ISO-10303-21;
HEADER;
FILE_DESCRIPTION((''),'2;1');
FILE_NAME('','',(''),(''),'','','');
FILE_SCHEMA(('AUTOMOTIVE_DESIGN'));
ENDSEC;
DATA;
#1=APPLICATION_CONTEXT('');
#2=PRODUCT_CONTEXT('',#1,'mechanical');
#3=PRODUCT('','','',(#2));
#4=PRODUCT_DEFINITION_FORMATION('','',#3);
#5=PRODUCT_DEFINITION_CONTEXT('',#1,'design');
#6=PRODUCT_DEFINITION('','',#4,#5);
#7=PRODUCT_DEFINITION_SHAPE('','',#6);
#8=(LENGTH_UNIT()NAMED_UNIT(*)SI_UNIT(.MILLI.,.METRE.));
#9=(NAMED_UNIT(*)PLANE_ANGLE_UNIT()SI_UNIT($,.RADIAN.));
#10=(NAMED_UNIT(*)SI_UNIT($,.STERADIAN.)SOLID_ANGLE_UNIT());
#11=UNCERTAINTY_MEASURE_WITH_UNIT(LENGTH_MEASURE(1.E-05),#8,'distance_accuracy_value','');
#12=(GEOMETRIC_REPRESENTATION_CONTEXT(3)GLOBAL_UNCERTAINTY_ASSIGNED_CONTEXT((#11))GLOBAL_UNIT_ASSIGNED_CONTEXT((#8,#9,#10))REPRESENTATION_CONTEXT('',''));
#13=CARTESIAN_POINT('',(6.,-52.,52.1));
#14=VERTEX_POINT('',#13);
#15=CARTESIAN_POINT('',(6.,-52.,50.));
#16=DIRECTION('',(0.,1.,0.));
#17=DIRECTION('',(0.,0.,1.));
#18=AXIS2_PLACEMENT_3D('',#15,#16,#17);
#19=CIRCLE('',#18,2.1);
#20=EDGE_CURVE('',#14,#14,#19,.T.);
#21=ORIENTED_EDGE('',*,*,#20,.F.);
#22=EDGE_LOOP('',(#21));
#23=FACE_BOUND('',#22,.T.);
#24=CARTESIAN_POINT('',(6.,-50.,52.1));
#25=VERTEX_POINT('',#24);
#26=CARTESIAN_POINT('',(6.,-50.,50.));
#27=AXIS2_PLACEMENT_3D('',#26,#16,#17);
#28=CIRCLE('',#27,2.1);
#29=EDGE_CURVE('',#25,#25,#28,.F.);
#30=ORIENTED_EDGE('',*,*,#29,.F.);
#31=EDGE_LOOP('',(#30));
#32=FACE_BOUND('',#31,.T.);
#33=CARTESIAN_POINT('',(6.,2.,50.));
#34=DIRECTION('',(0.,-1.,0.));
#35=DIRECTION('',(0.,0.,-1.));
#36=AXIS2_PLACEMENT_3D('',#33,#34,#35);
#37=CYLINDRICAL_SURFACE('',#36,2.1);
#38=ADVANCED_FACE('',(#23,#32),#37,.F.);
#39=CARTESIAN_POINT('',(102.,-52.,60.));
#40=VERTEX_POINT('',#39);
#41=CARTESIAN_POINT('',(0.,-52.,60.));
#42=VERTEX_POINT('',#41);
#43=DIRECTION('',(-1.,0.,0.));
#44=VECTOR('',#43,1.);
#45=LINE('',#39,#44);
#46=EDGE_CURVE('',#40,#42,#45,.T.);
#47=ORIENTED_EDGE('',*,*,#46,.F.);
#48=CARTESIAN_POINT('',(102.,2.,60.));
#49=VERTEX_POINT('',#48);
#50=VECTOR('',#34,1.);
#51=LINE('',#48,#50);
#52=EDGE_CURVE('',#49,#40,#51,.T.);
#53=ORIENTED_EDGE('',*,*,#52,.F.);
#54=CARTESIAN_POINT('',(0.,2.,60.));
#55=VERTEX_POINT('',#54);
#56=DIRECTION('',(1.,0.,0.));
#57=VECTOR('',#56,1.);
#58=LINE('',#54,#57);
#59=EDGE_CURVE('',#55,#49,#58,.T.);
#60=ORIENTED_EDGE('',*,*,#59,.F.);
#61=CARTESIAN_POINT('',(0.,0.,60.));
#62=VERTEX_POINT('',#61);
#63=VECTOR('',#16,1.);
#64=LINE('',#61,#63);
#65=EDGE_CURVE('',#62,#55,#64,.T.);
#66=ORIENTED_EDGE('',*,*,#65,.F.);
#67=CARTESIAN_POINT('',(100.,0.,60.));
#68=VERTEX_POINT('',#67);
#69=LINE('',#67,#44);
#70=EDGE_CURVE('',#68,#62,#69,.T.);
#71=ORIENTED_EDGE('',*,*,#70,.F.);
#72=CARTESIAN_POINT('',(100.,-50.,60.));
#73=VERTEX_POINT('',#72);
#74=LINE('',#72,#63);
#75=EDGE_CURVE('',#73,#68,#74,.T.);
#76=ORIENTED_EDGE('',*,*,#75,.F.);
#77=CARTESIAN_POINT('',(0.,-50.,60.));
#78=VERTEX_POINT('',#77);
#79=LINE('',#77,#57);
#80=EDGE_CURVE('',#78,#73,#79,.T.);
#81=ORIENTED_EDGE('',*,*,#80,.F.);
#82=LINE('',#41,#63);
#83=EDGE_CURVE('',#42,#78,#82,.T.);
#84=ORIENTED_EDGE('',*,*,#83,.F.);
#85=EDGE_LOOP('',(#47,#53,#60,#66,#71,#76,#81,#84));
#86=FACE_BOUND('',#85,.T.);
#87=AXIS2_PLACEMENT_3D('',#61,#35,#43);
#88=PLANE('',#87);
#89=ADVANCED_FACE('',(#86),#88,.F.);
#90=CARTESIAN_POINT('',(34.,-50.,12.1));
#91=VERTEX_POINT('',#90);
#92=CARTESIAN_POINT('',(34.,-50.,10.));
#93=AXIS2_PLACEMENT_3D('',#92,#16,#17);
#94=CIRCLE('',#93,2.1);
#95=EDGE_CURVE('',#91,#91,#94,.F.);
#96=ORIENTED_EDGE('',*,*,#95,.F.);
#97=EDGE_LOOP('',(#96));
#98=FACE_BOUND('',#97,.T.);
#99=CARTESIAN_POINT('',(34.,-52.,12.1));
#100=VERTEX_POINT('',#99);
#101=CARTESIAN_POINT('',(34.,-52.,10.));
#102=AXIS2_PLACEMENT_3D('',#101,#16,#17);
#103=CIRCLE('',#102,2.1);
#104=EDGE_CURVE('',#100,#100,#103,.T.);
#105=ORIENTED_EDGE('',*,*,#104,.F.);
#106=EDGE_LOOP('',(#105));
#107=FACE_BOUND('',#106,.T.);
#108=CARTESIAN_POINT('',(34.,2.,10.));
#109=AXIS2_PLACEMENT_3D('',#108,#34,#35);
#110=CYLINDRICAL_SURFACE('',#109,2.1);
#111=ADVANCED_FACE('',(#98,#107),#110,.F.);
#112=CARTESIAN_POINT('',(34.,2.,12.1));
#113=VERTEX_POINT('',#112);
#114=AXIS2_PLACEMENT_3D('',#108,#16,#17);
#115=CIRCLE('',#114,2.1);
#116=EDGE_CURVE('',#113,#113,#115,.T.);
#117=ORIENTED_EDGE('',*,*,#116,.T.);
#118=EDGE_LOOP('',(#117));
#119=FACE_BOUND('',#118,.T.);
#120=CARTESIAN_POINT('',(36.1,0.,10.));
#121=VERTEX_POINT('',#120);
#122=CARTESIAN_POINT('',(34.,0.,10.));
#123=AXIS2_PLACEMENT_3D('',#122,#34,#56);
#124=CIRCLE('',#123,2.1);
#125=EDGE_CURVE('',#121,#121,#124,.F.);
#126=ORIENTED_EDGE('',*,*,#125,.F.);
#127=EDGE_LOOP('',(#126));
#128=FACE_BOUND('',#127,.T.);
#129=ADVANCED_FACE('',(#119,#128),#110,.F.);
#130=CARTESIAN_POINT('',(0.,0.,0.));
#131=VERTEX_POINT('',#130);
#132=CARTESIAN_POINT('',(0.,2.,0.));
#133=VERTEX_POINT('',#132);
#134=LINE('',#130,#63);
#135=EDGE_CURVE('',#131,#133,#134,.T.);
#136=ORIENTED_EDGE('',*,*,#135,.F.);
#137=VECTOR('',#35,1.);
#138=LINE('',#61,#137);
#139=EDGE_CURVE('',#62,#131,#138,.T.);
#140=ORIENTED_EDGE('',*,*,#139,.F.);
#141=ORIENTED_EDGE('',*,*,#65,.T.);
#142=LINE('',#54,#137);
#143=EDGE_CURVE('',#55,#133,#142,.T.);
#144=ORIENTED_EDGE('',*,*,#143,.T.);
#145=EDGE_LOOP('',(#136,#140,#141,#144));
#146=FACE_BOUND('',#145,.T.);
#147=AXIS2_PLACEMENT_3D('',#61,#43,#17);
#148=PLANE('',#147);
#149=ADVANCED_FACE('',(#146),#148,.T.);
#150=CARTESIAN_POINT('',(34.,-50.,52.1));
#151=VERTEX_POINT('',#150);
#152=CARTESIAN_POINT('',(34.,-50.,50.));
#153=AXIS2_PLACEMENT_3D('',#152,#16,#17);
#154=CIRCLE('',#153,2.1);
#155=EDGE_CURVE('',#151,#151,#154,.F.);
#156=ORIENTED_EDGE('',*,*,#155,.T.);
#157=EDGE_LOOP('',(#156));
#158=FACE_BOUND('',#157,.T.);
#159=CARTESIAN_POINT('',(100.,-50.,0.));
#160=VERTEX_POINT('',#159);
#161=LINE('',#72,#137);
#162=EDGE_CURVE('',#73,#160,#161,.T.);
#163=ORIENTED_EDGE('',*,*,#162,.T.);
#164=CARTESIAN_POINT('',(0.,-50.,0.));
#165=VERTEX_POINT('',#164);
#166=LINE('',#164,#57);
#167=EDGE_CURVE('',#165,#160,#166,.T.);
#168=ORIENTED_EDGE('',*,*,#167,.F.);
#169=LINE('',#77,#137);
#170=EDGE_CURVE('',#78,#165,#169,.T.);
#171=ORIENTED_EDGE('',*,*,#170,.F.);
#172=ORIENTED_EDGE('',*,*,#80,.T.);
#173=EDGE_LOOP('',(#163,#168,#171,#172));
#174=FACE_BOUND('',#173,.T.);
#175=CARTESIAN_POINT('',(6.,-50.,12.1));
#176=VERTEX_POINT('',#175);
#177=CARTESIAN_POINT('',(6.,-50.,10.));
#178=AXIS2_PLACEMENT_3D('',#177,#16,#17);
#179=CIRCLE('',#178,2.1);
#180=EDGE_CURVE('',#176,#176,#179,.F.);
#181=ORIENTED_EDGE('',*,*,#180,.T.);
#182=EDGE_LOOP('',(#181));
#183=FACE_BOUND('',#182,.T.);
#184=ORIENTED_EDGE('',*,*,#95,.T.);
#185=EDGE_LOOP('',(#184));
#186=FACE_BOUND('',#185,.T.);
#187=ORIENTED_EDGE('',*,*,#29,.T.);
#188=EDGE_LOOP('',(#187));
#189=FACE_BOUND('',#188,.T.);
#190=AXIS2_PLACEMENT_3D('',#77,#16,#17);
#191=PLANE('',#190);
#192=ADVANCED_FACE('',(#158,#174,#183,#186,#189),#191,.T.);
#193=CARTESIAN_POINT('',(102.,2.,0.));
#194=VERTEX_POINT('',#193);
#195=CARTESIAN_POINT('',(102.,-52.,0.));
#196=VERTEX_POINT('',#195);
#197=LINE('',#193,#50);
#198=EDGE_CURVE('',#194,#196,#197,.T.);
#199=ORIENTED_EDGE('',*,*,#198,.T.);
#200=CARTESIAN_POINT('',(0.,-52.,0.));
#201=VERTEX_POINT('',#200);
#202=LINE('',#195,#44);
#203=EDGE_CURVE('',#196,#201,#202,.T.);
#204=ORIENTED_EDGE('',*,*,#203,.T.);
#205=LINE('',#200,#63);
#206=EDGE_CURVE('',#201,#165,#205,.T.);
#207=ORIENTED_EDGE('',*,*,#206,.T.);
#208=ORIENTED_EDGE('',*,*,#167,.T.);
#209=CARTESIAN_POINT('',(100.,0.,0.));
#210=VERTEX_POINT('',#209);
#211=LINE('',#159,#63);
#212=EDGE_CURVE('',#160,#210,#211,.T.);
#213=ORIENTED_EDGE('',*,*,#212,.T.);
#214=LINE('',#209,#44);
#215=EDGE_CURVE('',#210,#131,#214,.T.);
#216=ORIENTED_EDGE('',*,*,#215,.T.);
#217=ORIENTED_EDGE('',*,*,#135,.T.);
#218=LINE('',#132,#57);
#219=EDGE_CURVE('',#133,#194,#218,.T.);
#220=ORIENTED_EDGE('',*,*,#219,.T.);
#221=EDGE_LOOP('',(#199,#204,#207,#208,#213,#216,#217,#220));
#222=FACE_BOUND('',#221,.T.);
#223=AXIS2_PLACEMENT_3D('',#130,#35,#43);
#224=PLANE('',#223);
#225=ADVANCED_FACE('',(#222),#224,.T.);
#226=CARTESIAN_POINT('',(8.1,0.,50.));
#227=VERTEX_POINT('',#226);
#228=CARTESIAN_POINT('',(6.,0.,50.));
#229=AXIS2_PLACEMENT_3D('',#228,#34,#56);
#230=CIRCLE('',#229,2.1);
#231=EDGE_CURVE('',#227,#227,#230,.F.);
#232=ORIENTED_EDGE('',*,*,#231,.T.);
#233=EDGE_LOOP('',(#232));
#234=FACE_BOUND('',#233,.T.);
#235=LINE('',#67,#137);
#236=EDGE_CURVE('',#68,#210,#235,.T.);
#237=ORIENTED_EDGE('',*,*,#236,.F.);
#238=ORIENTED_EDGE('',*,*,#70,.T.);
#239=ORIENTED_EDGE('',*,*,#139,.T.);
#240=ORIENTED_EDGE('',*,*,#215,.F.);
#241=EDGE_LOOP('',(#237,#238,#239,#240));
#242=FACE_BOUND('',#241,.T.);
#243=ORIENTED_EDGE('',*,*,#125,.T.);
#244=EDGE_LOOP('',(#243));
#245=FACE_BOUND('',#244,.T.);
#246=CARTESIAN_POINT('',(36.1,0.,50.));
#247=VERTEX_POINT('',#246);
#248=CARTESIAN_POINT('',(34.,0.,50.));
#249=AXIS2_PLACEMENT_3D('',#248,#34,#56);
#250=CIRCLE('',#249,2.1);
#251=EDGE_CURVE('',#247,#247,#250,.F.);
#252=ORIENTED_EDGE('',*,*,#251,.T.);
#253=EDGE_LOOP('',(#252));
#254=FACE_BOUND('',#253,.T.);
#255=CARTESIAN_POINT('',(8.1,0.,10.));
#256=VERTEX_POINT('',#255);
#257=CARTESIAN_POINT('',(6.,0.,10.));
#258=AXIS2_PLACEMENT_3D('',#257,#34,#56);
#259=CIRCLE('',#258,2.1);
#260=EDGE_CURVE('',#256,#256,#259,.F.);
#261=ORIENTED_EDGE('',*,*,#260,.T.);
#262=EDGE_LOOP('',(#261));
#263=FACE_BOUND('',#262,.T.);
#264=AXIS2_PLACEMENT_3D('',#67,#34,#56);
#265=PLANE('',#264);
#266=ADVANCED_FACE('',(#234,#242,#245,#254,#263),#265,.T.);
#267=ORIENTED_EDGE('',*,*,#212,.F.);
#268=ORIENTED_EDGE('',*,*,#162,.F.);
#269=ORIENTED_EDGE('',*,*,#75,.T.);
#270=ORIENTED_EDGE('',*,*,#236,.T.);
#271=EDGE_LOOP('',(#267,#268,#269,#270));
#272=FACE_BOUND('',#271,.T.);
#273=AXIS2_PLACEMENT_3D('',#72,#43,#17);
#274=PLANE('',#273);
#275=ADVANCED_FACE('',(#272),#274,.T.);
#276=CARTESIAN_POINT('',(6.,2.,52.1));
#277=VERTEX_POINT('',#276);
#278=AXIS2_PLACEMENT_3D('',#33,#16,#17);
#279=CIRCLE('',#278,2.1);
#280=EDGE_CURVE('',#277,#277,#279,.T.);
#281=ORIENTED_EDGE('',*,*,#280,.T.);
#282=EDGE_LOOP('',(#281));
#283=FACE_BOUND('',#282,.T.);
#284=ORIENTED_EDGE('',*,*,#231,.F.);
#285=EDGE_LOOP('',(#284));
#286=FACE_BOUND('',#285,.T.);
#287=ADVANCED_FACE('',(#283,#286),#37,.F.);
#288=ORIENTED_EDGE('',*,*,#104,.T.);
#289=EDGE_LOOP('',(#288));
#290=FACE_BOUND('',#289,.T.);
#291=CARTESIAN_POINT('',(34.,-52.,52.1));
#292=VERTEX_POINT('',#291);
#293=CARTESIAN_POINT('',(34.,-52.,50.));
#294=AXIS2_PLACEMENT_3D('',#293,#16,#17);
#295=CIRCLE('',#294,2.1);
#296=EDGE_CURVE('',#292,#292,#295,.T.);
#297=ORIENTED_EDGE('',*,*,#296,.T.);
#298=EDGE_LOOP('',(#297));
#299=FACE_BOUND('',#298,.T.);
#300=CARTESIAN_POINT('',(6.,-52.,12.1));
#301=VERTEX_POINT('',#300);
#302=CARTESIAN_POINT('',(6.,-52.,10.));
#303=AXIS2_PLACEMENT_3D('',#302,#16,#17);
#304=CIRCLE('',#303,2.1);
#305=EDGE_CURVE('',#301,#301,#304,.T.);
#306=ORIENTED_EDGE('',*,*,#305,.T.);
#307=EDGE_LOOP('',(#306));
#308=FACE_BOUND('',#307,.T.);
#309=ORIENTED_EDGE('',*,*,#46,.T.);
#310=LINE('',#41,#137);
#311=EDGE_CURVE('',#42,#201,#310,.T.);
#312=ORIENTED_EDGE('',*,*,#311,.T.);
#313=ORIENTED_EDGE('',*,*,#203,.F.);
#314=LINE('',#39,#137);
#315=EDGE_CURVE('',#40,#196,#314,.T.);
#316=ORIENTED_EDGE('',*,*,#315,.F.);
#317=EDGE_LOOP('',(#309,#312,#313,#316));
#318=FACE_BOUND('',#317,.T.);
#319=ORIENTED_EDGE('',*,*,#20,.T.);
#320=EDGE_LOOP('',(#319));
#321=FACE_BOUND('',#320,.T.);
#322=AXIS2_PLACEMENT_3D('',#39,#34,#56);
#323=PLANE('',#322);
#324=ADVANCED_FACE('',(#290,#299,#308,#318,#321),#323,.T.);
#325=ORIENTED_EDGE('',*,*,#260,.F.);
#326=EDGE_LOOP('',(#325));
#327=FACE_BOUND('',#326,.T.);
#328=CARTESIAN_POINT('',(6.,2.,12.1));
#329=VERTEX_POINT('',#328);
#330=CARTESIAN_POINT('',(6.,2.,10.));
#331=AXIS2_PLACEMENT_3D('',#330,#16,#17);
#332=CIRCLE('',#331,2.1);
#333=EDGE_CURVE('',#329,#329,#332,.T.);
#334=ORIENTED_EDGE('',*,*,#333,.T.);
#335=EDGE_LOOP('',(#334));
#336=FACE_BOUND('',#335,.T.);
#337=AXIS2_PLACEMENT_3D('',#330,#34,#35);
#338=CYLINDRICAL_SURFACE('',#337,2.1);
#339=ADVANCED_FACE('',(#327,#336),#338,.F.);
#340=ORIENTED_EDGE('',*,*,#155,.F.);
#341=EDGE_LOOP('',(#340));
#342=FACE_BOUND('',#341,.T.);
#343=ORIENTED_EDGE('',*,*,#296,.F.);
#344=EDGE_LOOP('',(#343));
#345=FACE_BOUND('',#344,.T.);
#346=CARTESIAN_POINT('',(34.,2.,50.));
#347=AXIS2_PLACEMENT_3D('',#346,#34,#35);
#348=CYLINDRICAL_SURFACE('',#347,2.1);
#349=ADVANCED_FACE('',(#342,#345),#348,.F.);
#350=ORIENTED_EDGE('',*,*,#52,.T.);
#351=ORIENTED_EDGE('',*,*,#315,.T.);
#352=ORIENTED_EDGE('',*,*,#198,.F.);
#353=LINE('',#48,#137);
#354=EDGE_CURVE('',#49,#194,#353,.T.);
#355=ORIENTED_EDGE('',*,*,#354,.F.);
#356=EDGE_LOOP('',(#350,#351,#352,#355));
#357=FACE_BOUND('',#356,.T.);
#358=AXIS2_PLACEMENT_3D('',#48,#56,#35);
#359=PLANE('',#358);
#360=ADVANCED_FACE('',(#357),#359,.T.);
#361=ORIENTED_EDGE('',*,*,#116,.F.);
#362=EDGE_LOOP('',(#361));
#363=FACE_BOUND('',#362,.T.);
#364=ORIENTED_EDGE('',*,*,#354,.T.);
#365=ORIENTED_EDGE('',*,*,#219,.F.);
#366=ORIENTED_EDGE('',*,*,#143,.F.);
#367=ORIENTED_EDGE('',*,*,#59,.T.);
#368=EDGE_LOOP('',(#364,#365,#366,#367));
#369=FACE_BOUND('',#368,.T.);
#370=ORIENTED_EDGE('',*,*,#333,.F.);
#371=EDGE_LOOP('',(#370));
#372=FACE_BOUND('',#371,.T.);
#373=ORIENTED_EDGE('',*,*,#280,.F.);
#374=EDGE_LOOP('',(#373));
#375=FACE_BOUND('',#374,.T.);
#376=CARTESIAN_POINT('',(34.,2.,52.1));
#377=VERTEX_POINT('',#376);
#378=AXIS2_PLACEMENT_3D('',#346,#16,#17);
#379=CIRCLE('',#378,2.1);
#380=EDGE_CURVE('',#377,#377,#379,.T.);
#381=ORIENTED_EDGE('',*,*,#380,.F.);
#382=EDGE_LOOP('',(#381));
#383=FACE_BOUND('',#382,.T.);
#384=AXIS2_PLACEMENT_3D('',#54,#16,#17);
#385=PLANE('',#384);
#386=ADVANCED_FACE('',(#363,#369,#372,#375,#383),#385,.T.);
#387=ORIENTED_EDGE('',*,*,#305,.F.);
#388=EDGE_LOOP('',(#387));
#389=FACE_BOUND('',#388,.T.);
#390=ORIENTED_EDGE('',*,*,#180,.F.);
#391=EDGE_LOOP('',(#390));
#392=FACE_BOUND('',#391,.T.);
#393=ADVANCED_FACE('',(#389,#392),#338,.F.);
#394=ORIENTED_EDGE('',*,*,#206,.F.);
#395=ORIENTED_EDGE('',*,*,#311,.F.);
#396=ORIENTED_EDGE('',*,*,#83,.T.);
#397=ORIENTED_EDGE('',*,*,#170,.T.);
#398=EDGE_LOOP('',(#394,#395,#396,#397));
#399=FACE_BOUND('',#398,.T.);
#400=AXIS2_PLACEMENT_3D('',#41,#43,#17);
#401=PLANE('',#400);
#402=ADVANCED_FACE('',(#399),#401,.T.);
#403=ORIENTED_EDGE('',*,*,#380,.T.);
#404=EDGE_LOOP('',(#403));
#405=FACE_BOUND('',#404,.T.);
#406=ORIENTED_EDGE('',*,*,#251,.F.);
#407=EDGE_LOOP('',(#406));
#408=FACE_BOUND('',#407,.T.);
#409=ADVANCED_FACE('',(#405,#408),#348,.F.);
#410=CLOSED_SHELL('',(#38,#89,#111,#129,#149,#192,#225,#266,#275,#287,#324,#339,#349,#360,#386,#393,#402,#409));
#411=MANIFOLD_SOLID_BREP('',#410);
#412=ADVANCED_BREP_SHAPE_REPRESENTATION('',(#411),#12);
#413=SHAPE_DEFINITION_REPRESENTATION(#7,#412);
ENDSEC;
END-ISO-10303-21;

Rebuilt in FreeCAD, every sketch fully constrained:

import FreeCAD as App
import Part
import Sketcher

V = App.Vector
Q = App.Units.Quantity

doc = App.newDocument("Part")
body = doc.addObject("PartDesign::Body", "Body")

# Sketch on XY plane
sketch1 = body.newObject("Sketcher::SketchObject", "Sketch")
sketch1.AttachmentSupport = (doc.getObject("XY_Plane"), [""])
sketch1.MapMode = "FlatFace"
sketch1.addGeometry([
    Part.LineSegment(V(0, 2, 0), V(0, 0, 0)),  # 0
    Part.LineSegment(V(0, 0, 0), V(100, 0, 0)),  # 1
    Part.LineSegment(V(100, 0, 0), V(100, -50, 0)),  # 2
    Part.LineSegment(V(100, -50, 0), V(0, -50, 0)),  # 3
    Part.LineSegment(V(0, -50, 0), V(0, -52, 0)),  # 4
    Part.LineSegment(V(0, -52, 0), V(102, -52, 0)),  # 5
    Part.LineSegment(V(102, -52, 0), V(102, 2, 0)),  # 6
    Part.LineSegment(V(102, 2, 0), V(0, 2, 0)),  # 7
], False)
sketch1.addConstraint([
    Sketcher.Constraint("Coincident", 0, 2, 1, 1),
    Sketcher.Constraint("Coincident", 1, 2, 2, 1),
    Sketcher.Constraint("Coincident", 2, 2, 3, 1),
    Sketcher.Constraint("Coincident", 3, 2, 4, 1),
    Sketcher.Constraint("Coincident", 4, 2, 5, 1),
    Sketcher.Constraint("Coincident", 5, 2, 6, 1),
    Sketcher.Constraint("Coincident", 6, 2, 7, 1),
    Sketcher.Constraint("Coincident", 7, 2, 0, 1),
    Sketcher.Constraint("Vertical", 0),
    Sketcher.Constraint("Horizontal", 1),
    Sketcher.Constraint("Vertical", 2),
    Sketcher.Constraint("Horizontal", 3),
    Sketcher.Constraint("Vertical", 4),
    Sketcher.Constraint("Horizontal", 5),
    Sketcher.Constraint("Vertical", 6),
    Sketcher.Constraint("Horizontal", 7),
    Sketcher.Constraint("Coincident", 0, 2, -1, 1),
    Sketcher.Constraint("PointOnObject", 3, 2, -2),
    Sketcher.Constraint("Equal", 0, 4),
    Sketcher.Constraint("DistanceX", 1, 1, 1, 2, Q("100 mm")),
    Sketcher.Constraint("DistanceX", 5, 1, 5, 2, Q("102 mm")),
    Sketcher.Constraint("DistanceY", 0, 2, 0, 1, Q("2 mm")),
    Sketcher.Constraint("DistanceY", 2, 2, 2, 1, Q("50 mm")),
])
pad1 = body.newObject("PartDesign::Pad", "Pad")
pad1.Profile = sketch1
pad1.Length = 60

# Sketch on XZ plane
sketch2 = body.newObject("Sketcher::SketchObject", "Sketch001")
sketch2.AttachmentSupport = (doc.getObject("XZ_Plane"), [""])
sketch2.MapMode = "FlatFace"
sketch2.addGeometry([
    Part.Circle(V(6, 10, 0), V(0, 0, 1), 2.1),
    Part.Circle(V(34, 10, 0), V(0, 0, 1), 2.1),
    Part.Circle(V(34, 50, 0), V(0, 0, 1), 2.1),
    Part.Circle(V(6, 50, 0), V(0, 0, 1), 2.1),
], False)
sketch2.addConstraint([
    Sketcher.Constraint("Equal", 0, 1),
    Sketcher.Constraint("Equal", 1, 2),
    Sketcher.Constraint("Equal", 2, 3),
    Sketcher.Constraint("Horizontal", 0, 3, 1, 3),
    Sketcher.Constraint("Horizontal", 2, 3, 3, 3),
    Sketcher.Constraint("Vertical", 1, 3, 2, 3),
    Sketcher.Constraint("Vertical", 0, 3, 3, 3),
    Sketcher.Constraint("Diameter", 0, Q("4.2 mm")),
    Sketcher.Constraint("DistanceX", -1, 1, 0, 3, Q("6 mm")),
    Sketcher.Constraint("DistanceY", -1, 1, 0, 3, Q("10 mm")),
    Sketcher.Constraint("DistanceX", -1, 1, 1, 3, Q("34 mm")),
    Sketcher.Constraint("DistanceY", -1, 1, 2, 3, Q("50 mm")),
])
pocket1 = body.newObject("PartDesign::Pocket", "Pocket")
pocket1.Profile = sketch2
pocket1.Type = "ThroughAll"
pocket1.Midplane = True

doc.recompute()
